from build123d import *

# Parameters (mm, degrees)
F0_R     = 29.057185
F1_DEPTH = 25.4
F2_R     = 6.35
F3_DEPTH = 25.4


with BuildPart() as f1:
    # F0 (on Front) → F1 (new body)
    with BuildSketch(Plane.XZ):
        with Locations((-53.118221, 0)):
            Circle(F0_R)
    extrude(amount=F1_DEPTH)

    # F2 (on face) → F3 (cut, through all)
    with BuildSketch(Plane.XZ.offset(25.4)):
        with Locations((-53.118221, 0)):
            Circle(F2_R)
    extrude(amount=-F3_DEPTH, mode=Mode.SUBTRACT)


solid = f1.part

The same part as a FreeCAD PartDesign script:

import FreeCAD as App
import Part
import Sketcher

V = App.Vector
Q = App.Units.Quantity

doc = App.newDocument("Part")
body = doc.addObject("PartDesign::Body", "Body")

# Sketch on XZ plane
sketch1 = body.newObject("Sketcher::SketchObject", "Sketch")
sketch1.AttachmentSupport = (doc.getObject("XZ_Plane"), [""])
sketch1.MapMode = "FlatFace"
sketch1.addGeometry(Part.Circle(V(-53, 0, 0), V(0, 0, 1), 29), False)
sketch1.addConstraint([
    Sketcher.Constraint("PointOnObject", 0, 3, -1),
    Sketcher.Constraint("Diameter", 0, 58.11437),
    Sketcher.Constraint("DistanceX", 0, 3, -1, 1, 53.118221),
])
pad1 = body.newObject("PartDesign::Pad", "Pad")
pad1.Profile = sketch1
pad1.Length = Q("1 in")

# Sketch on XZ plane
sketch2 = body.newObject("Sketcher::SketchObject", "Sketch001")
sketch2.AttachmentSupport = (doc.getObject("XZ_Plane"), [""])
sketch2.MapMode = "FlatFace"
sketch2.AttachmentOffset = App.Placement(V(0, 0, 1 * 25.4), App.Rotation())
sketch2.addGeometry(Part.Circle(V(-53, 0, 0), V(0, 0, 1), 6), False)
sketch2.addConstraint([
    Sketcher.Constraint("PointOnObject", 0, 3, -1),
    Sketcher.Constraint("Diameter", 0, Q("0.5 in")),
    Sketcher.Constraint("DistanceX", 0, 3, -1, 1, 53.118221),
])
pocket1 = body.newObject("PartDesign::Pocket", "Pocket")
pocket1.Profile = sketch2
pocket1.Type = "ThroughAll"

doc.recompute()
